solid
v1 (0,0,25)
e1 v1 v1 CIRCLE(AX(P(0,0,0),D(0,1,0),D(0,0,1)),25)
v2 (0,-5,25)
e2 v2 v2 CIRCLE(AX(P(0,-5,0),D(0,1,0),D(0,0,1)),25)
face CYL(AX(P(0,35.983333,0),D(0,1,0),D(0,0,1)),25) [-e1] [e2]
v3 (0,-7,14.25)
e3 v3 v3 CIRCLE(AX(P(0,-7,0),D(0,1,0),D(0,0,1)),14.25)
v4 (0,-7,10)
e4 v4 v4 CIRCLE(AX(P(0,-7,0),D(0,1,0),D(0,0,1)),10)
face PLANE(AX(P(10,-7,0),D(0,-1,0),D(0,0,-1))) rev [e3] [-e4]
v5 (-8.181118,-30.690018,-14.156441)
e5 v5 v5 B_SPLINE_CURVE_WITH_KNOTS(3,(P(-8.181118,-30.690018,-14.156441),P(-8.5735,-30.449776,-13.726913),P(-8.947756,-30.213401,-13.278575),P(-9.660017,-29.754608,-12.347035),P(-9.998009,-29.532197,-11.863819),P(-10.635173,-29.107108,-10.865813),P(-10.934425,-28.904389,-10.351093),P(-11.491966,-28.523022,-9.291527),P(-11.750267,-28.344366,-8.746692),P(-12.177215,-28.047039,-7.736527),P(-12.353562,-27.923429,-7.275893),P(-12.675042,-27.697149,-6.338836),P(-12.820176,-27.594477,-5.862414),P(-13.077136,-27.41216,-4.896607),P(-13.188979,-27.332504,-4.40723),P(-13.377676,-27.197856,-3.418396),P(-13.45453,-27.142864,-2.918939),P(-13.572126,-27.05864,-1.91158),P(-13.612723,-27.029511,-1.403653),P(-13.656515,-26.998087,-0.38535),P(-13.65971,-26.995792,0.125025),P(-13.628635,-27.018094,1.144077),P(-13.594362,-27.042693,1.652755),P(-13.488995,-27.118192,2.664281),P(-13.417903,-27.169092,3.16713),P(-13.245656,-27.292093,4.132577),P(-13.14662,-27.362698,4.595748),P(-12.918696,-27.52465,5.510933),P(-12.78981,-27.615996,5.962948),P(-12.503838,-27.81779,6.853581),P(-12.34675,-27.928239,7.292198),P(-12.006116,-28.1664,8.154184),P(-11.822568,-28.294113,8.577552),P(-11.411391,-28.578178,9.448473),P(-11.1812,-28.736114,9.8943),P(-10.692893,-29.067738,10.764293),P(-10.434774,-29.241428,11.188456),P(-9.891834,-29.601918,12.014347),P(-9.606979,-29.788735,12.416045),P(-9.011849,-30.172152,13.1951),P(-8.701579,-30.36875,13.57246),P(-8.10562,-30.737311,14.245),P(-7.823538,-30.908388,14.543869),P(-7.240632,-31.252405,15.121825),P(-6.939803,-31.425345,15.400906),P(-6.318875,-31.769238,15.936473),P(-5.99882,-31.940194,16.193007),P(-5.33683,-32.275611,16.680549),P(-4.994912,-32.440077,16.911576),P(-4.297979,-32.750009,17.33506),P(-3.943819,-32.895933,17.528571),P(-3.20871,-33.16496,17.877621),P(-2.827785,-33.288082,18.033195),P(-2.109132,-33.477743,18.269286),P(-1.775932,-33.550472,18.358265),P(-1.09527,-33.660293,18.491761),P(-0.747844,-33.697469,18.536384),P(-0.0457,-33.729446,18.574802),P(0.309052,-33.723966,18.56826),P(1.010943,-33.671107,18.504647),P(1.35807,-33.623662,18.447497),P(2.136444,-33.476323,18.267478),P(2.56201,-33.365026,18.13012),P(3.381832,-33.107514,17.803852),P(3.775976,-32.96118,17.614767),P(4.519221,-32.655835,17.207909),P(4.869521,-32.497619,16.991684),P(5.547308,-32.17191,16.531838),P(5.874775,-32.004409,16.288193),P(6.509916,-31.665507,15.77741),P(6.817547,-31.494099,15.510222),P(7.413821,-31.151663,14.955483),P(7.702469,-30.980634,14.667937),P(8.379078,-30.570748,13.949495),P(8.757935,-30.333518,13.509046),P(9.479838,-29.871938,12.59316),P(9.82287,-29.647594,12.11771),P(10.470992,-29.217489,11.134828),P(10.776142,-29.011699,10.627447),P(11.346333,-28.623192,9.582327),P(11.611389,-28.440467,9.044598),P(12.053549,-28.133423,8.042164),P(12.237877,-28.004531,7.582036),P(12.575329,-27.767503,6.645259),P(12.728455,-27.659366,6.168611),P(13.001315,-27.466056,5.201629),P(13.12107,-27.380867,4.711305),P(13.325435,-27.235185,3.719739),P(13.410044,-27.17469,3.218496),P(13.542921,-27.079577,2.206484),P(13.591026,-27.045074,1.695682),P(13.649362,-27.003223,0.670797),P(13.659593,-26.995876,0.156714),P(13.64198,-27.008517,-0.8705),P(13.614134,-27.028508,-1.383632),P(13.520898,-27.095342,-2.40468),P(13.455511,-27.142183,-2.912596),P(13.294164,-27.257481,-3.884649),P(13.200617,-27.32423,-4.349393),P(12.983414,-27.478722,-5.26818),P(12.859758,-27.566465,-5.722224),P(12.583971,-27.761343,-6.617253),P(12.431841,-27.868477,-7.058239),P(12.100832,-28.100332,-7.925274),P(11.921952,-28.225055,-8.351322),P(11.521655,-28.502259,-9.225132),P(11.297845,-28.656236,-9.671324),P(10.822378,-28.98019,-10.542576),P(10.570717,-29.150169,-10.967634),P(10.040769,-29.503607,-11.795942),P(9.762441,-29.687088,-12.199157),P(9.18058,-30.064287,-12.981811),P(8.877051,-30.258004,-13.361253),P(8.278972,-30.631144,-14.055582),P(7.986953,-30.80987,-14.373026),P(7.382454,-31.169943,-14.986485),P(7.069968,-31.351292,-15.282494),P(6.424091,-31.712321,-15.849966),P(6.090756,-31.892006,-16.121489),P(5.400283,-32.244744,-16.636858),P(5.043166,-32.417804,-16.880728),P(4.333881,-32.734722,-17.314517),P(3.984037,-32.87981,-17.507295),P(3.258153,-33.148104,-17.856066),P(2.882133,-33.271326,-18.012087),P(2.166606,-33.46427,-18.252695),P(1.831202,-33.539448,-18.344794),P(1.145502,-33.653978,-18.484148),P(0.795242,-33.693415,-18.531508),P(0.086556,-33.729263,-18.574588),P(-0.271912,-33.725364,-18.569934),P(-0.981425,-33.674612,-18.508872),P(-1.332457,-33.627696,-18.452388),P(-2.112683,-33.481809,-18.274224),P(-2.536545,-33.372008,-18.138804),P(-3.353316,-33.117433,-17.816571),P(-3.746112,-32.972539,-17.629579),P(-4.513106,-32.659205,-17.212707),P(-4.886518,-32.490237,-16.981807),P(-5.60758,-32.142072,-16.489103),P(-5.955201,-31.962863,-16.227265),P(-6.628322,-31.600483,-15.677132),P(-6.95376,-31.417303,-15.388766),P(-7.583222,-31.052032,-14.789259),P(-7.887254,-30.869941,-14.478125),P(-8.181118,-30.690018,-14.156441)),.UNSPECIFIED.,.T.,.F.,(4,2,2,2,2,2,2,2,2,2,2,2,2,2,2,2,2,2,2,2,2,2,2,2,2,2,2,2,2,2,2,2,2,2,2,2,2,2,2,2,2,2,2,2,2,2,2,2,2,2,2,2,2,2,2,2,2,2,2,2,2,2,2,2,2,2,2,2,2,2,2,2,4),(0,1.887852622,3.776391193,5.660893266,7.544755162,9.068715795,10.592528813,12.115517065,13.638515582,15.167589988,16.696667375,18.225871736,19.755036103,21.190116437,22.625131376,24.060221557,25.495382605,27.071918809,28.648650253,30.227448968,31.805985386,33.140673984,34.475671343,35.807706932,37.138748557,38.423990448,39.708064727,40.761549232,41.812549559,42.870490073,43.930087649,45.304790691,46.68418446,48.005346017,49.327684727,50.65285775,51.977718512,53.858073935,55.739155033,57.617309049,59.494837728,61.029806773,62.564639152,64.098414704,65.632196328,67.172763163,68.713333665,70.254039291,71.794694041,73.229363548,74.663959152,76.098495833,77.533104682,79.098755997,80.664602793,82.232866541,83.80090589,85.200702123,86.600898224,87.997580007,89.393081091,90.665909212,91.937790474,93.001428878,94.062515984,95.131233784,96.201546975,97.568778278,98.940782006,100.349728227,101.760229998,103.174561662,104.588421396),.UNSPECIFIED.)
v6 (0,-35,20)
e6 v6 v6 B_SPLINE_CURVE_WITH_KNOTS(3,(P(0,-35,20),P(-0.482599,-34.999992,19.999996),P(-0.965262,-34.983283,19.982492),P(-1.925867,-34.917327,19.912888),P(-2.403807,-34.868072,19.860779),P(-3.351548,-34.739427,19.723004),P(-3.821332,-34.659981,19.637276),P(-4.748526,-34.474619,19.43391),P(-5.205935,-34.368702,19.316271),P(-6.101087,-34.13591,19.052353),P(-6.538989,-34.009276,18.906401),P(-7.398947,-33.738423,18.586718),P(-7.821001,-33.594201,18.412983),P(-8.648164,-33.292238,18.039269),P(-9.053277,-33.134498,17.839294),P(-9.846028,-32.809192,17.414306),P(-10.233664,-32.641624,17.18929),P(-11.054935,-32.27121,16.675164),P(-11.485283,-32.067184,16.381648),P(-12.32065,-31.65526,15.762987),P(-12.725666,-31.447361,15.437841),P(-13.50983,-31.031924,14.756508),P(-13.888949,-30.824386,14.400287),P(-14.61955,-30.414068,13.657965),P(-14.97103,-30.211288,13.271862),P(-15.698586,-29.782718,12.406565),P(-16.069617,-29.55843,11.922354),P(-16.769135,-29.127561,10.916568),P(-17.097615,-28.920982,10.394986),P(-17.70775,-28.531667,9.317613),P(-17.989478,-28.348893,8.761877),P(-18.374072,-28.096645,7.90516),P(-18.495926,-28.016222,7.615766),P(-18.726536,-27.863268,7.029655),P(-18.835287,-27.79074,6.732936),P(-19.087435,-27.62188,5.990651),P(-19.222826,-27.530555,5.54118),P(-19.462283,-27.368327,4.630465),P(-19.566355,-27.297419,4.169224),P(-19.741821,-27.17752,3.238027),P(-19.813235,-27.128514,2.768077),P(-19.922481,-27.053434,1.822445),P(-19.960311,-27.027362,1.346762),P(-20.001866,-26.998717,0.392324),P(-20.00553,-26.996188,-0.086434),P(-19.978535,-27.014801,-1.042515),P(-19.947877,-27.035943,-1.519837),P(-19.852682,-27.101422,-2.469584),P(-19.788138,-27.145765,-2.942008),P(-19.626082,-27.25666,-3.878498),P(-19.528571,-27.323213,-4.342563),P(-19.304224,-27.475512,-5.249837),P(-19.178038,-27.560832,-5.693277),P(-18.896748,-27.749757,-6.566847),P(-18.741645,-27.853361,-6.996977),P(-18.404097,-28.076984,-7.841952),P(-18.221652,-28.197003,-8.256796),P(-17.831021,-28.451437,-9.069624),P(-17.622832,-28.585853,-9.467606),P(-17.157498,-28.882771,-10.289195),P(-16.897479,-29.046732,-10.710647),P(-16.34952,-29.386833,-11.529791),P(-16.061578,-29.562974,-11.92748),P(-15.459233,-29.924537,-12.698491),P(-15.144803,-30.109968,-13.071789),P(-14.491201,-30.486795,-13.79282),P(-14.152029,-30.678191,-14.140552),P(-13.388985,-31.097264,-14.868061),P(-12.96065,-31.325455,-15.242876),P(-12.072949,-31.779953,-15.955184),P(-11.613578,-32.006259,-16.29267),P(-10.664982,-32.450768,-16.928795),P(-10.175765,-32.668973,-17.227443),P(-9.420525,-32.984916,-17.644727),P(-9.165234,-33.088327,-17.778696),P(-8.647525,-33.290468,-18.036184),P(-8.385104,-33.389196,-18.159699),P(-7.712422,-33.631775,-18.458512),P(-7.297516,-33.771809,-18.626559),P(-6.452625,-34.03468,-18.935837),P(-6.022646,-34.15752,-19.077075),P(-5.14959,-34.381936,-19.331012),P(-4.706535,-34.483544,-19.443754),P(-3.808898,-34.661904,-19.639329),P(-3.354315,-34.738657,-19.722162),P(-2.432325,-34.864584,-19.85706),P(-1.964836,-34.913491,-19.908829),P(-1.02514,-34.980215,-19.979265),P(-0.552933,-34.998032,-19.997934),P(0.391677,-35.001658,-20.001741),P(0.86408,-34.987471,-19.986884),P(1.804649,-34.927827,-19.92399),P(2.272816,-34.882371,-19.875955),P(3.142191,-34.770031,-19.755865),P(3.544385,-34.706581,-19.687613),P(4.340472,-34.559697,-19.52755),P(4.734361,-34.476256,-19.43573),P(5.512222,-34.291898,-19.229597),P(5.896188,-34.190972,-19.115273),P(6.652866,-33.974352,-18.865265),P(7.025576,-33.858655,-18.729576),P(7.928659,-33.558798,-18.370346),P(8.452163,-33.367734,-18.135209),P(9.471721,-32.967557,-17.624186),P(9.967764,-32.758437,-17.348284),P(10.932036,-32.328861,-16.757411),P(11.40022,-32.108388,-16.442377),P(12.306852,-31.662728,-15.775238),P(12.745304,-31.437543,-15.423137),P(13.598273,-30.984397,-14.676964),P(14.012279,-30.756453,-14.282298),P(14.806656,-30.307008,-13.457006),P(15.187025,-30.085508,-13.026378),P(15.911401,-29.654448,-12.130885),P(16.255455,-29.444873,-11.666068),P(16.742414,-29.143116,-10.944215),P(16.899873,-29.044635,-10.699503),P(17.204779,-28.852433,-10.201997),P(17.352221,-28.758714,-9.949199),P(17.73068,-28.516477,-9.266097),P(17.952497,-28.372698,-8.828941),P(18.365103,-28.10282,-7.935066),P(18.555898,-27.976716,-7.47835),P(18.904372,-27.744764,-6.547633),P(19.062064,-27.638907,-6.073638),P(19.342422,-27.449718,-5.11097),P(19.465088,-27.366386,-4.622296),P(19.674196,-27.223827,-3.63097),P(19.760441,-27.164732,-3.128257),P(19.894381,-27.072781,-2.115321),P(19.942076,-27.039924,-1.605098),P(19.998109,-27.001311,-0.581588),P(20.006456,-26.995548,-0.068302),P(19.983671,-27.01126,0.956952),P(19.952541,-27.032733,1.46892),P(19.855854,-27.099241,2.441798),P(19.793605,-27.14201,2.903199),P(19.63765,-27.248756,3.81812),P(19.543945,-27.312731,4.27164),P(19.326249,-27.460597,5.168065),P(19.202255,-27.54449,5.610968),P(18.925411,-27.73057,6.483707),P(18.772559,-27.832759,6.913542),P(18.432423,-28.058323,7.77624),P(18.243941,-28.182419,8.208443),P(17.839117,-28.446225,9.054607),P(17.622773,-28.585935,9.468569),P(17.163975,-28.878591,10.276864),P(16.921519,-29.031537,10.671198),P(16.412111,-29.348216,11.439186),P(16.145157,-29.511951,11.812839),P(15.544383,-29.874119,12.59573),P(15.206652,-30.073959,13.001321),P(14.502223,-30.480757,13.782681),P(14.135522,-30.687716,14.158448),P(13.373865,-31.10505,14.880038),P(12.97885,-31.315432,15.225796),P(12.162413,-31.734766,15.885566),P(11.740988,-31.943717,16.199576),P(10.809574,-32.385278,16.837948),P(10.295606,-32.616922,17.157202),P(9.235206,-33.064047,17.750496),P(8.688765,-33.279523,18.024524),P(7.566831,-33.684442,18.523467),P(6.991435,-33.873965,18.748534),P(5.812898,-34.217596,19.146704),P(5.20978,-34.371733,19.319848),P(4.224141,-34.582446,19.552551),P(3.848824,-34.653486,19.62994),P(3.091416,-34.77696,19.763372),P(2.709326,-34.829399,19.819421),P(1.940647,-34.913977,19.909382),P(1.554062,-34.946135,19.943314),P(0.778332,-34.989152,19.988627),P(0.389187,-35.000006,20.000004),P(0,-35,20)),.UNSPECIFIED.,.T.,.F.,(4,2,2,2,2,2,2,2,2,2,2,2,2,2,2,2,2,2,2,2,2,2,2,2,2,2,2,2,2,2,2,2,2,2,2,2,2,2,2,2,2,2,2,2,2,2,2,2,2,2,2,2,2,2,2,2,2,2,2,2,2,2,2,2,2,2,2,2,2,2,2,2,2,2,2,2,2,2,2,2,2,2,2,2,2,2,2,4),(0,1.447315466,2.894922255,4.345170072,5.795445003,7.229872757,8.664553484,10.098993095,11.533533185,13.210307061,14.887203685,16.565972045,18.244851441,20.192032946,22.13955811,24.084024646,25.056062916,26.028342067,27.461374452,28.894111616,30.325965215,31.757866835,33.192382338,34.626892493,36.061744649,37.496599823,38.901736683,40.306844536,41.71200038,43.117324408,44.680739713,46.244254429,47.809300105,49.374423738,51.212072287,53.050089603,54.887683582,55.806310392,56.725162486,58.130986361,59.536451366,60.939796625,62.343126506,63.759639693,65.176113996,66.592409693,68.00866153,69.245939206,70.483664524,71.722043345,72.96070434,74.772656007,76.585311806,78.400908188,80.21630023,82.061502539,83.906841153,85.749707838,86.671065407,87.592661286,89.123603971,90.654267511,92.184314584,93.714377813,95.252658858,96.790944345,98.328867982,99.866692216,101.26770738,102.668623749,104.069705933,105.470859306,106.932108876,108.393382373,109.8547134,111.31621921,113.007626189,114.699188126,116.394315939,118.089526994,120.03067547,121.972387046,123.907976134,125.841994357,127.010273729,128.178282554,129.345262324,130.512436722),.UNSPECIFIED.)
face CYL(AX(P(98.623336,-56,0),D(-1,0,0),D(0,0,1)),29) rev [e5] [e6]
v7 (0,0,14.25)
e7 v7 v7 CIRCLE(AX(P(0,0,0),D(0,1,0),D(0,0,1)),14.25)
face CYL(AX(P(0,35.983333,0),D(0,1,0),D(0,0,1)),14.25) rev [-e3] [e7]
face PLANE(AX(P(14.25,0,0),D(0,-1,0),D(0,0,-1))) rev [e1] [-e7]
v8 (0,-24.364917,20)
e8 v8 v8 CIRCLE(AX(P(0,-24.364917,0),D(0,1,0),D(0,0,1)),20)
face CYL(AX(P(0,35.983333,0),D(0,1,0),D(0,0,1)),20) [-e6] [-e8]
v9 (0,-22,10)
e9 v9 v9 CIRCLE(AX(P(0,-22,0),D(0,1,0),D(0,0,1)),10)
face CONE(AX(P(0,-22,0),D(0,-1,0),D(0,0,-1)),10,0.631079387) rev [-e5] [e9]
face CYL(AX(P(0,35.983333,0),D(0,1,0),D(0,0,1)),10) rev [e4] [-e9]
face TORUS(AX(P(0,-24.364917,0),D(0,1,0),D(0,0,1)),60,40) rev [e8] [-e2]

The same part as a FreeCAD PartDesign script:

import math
import FreeCAD as App
import Part
import Sketcher
from FreeCAD import Vector

doc = App.newDocument("Part")
body = doc.addObject("PartDesign::Body", "Body")

# Sketch on XY plane
sketch1 = doc.addObject("Sketcher::SketchObject", "Sketch")
body.addObject(sketch1)
sketch1.AttachmentSupport = (doc.XY_Plane, [""])
sketch1.MapMode = "FlatFace"
sketch1.addGeometry([
    Part.LineSegment(Vector(10, -7, 0), Vector(10, -22, 0)),  # 0
    Part.LineSegment(Vector(10, -22, 0), Vector(19.5, -35, 0)),  # 1
    Part.LineSegment(Vector(19.5, -35, 0), Vector(20, -35, 0)),  # 2
    Part.LineSegment(Vector(20, -35, 0), Vector(20, -24.364917, 0)),  # 3
    Part.ArcOfCircle(Part.Circle(Vector(60, -24.364917, 0), Vector(0, 0, 1), 40), math.radians(151.044976), math.radians(180)),  # 4
    Part.LineSegment(Vector(25, -5, 0), Vector(25, 0, 0)),  # 5
    Part.LineSegment(Vector(25, 0, 0), Vector(14.25, 0, 0)),  # 6
    Part.LineSegment(Vector(14.25, 0, 0), Vector(14.25, -7, 0)),  # 7
    Part.LineSegment(Vector(14.25, -7, 0), Vector(10, -7, 0)),  # 8
], False)
sketch1.addConstraint([
    Sketcher.Constraint("Coincident", 0, 2, 1, 1),
    Sketcher.Constraint("Coincident", 1, 2, 2, 1),
    Sketcher.Constraint("Coincident", 2, 2, 3, 1),
    Sketcher.Constraint("Tangent", 3, 2, 4, 2),
    Sketcher.Constraint("Coincident", 4, 1, 5, 1),
    Sketcher.Constraint("Coincident", 5, 2, 6, 1),
    Sketcher.Constraint("Coincident", 6, 2, 7, 1),
    Sketcher.Constraint("Coincident", 7, 2, 8, 1),
    Sketcher.Constraint("Coincident", 8, 2, 0, 1),
    Sketcher.Constraint("Vertical", 0),
    Sketcher.Constraint("Horizontal", 2),
    Sketcher.Constraint("Vertical", 3),
    Sketcher.Constraint("Vertical", 5),
    Sketcher.Constraint("Horizontal", 6),
    Sketcher.Constraint("Vertical", 7),
    Sketcher.Constraint("Horizontal", 8),
    Sketcher.Constraint("PointOnObject", 5, 2, -1),
    Sketcher.Constraint("Radius", 4, 40.0),
    Sketcher.Constraint("DistanceY", 0, 2, 0, 1, 15.0),
    Sketcher.Constraint("DistanceY", 5, 1, 5, 2, 5.0),
    Sketcher.Constraint("DistanceY", 7, 2, 7, 1, 7.0),
    Sketcher.Constraint("DistanceX", 2, 1, 2, 2, 0.5),
    Sketcher.Constraint("DistanceX", -1, 1, 4, 3, 60.0),
    Sketcher.Constraint("DistanceX", -1, 1, 0, 2, 10.0),
    Sketcher.Constraint("DistanceY", 1, 2, -1, 1, 35.0),
    Sketcher.Constraint("DistanceX", -1, 1, 4, 1, 25.0),
    Sketcher.Constraint("DistanceX", 6, 2, 6, 1, 10.75),
])
revolution = doc.addObject("PartDesign::Revolution", "Revolution")
body.addObject(revolution)
revolution.Profile = sketch1
revolution.ReferenceAxis = (sketch1, ["V_Axis"])
revolution.Angle = 360

# Sketch on YZ plane
sketch2 = doc.addObject("Sketcher::SketchObject", "Sketch001")
body.addObject(sketch2)
sketch2.AttachmentSupport = (doc.YZ_Plane, [""])
sketch2.MapMode = "FlatFace"
sketch2.addGeometry([
    Part.LineSegment(Vector(-120.52934, -109.805807, 0), Vector(-35, -20, 0)),  # 0
    Part.ArcOfCircle(Part.Circle(Vector(-56, 0, 0), Vector(0, 0, 1), 29), math.radians(-43.602819), math.radians(43.602819)),  # 1
    Part.LineSegment(Vector(-35, 20, 0), Vector(-120.52934, 109.805807, 0)),  # 2
    Part.LineSegment(Vector(-120.52934, 109.805807, 0), Vector(-368.564425, 109.805807, 0)),  # 3
    Part.LineSegment(Vector(-368.564425, 109.805807, 0), Vector(-368.564425, -109.805807, 0)),  # 4
    Part.LineSegment(Vector(-368.564425, -109.805807, 0), Vector(-120.52934, -109.805807, 0)),  # 5
], False)
sketch2.addConstraint([
    Sketcher.Constraint("Tangent", 0, 2, 1, 1),
    Sketcher.Constraint("Tangent", 1, 2, 2, 1),
    Sketcher.Constraint("Coincident", 2, 2, 3, 1),
    Sketcher.Constraint("Coincident", 3, 2, 4, 1),
    Sketcher.Constraint("Coincident", 4, 2, 5, 1),
    Sketcher.Constraint("Coincident", 5, 2, 0, 1),
    Sketcher.Constraint("Horizontal", 3),
    Sketcher.Constraint("Vertical", 4),
    Sketcher.Constraint("Horizontal", 5),
    Sketcher.Constraint("Symmetric", 0, 2, 1, 2, -1),
    Sketcher.Constraint("Vertical", 2, 2, 5, 2),
    Sketcher.Constraint("Radius", 1, 29.0),
    Sketcher.Constraint("DistanceX", 1, 3, -1, 1, 56.0),
    Sketcher.Constraint("DistanceX", 0, 2, -1, 1, 35.0),
    Sketcher.Constraint("DistanceX", 3, 2, 3, 1, 248.035085),
    Sketcher.Constraint("DistanceY", 4, 2, 4, 1, 219.611613),
])
pocket1 = doc.addObject("PartDesign::Pocket", "Pocket")
body.addObject(pocket1)
pocket1.Profile = sketch2
pocket1.Type = "ThroughAll"
pocket1.Midplane = True

doc.recompute()
